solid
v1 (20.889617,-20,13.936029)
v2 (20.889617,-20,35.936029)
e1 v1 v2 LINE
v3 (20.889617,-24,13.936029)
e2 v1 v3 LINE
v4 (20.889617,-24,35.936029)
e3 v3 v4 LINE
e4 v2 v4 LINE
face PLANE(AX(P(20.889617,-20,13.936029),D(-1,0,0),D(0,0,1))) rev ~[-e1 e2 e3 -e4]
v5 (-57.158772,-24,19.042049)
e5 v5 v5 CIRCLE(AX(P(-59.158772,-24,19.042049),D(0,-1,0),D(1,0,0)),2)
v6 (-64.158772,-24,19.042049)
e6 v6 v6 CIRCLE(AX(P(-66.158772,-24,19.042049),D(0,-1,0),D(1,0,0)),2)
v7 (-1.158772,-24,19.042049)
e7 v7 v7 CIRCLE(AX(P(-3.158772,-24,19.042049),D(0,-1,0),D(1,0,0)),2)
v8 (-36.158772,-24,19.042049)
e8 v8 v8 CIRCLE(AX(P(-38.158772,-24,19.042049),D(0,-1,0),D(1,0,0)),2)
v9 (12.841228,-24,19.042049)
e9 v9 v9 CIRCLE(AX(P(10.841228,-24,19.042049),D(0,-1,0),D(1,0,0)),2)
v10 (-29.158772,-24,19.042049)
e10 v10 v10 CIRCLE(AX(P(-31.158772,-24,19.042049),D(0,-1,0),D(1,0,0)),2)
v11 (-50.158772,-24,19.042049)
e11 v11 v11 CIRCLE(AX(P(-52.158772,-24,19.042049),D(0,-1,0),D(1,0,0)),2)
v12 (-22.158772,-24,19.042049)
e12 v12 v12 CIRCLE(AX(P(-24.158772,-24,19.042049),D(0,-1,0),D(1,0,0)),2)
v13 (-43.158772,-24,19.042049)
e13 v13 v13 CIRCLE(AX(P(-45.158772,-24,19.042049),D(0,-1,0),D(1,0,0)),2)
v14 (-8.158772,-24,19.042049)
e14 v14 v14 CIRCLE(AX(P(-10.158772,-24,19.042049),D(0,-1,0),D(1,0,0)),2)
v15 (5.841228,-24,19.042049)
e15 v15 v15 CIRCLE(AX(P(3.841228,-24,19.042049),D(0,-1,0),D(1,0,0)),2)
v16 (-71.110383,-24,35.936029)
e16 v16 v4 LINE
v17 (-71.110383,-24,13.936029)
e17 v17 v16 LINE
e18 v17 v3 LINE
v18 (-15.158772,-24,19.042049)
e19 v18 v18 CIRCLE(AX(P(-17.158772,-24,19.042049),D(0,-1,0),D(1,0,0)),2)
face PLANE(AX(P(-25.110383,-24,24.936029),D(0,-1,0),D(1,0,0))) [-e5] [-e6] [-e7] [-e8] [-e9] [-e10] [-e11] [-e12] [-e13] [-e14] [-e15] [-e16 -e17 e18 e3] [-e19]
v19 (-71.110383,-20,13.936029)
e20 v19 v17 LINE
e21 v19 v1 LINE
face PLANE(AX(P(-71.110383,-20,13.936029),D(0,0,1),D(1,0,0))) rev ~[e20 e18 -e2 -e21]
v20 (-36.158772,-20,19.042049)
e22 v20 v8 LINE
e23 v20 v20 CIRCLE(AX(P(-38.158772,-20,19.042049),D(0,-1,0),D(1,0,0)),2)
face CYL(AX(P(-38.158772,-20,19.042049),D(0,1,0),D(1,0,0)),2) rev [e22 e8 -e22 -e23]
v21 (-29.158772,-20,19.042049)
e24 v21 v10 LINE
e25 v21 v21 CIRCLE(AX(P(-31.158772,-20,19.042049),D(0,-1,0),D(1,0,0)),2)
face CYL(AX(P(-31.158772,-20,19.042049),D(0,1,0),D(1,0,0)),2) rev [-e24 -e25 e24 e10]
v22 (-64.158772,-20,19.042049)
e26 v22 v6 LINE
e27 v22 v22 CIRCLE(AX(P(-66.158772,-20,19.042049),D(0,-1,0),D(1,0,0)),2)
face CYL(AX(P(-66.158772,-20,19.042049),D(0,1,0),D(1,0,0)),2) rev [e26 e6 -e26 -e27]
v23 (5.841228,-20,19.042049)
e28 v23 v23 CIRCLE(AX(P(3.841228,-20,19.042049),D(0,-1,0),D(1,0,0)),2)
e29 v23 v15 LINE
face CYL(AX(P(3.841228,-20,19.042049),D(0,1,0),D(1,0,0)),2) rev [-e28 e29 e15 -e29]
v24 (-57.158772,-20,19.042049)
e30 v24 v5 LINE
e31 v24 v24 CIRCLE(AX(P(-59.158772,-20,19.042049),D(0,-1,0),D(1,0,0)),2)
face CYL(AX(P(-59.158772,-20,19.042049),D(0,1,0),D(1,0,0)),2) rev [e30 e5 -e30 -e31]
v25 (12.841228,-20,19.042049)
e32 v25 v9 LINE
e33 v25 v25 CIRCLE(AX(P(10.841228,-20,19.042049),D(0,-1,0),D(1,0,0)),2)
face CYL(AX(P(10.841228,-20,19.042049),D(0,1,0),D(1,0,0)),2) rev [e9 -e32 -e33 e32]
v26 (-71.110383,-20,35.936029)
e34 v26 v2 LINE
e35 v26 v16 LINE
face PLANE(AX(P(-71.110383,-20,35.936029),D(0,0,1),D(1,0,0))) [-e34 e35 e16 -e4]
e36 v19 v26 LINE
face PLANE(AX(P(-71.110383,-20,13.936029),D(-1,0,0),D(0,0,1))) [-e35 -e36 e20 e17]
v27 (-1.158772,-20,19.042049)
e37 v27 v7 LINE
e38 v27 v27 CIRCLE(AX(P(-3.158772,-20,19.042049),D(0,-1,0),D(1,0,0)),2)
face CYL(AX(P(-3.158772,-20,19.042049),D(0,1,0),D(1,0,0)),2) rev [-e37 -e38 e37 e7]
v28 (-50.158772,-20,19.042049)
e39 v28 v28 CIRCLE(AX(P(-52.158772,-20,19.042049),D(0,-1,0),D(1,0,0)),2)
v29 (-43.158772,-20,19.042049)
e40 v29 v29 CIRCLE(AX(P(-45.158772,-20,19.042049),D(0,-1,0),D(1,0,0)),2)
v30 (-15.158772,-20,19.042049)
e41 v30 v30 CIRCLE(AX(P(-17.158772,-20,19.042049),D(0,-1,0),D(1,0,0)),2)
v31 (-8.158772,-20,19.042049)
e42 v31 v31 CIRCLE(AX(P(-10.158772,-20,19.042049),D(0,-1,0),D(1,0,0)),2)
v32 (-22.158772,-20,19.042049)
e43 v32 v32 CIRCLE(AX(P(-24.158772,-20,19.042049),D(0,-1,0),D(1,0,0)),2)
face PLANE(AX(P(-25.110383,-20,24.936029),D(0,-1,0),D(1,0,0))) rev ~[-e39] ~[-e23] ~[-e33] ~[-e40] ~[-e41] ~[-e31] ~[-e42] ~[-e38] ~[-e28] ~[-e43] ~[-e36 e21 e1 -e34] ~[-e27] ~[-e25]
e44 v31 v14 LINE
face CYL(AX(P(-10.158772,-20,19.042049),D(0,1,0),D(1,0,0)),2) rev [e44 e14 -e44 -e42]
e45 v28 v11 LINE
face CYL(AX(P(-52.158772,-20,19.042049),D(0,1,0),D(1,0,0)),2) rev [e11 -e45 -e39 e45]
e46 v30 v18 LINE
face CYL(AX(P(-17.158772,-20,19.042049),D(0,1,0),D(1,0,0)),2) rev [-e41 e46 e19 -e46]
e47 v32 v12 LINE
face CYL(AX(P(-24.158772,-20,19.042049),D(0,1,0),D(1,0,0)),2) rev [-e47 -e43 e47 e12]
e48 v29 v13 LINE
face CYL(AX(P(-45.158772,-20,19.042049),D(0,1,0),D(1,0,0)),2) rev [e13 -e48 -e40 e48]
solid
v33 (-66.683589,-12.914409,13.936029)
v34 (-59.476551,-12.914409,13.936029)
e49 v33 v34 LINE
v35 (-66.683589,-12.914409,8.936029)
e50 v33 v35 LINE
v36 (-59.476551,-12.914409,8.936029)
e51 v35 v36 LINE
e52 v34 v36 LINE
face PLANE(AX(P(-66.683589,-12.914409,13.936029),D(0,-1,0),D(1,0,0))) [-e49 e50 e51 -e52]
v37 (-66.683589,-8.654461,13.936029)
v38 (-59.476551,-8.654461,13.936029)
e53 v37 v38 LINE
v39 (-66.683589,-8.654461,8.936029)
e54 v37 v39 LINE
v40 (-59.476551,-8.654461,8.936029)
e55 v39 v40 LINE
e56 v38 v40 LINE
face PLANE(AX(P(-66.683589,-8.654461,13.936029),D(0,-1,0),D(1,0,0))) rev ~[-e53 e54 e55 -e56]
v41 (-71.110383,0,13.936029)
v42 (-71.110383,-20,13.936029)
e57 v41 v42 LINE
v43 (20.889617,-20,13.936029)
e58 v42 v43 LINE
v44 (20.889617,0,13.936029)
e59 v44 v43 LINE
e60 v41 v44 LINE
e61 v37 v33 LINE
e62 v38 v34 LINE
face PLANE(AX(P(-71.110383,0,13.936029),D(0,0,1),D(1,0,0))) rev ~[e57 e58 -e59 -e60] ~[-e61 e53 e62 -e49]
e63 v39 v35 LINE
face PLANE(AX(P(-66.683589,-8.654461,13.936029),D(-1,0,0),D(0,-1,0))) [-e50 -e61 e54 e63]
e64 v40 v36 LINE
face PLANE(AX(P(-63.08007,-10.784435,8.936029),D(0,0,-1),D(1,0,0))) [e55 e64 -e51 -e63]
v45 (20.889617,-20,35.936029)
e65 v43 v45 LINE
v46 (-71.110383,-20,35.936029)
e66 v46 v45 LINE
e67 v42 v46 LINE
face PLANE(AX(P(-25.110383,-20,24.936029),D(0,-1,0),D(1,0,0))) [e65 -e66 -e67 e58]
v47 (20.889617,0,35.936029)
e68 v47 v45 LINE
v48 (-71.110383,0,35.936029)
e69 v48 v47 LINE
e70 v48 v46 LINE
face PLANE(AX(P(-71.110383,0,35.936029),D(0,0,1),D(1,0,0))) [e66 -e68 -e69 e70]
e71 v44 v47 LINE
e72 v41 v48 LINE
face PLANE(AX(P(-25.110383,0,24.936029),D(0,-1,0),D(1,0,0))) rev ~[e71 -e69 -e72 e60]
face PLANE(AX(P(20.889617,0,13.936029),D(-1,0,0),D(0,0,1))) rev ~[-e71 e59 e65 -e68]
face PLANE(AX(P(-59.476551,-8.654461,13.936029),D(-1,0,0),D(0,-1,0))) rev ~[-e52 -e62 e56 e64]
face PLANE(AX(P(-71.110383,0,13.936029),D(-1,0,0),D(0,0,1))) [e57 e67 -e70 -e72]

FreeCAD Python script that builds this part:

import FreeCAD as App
import Part
import Sketcher
from FreeCAD import Vector


def add_polygon(sketch, points):
    """Adds a closed chain of lines whose ends are joined by coincident constraints."""
    first, n = sketch.GeometryCount, len(points)
    for a, b in zip(points, points[1:] + points[:1]):
        sketch.addGeometry(Part.LineSegment(App.Vector(*a, 0), App.Vector(*b, 0)), False)
    for i in range(n):
        sketch.addConstraint(Sketcher.Constraint("Coincident", first + i, 2, first + (i + 1) % n, 1))

doc = App.newDocument("Part")
body = doc.addObject("PartDesign::Body", "Body")

sketch1 = body.newObject("Sketcher::SketchObject", "Sketch")
sketch1.AttachmentSupport = (doc.getObject("XZ_Plane"), [""])
sketch1.MapMode = "FlatFace"
add_polygon(sketch1, [(-71, 36), (-71, 14), (21, 14), (21, 36)])
sketch1.addConstraint(Sketcher.Constraint("Vertical", 0))
sketch1.addConstraint(Sketcher.Constraint("Horizontal", 1))
sketch1.addConstraint(Sketcher.Constraint("Vertical", 2))
sketch1.addConstraint(Sketcher.Constraint("Horizontal", 3))
sketch1.addConstraint(Sketcher.Constraint("DistanceX", 1, 1, 1, 2, 92.0))
sketch1.addConstraint(Sketcher.Constraint("DistanceY", 0, 2, 0, 1, 22.0))
sketch1.addConstraint(Sketcher.Constraint("DistanceY", -1, 1, 0, 2, 13.936029))
sketch1.addConstraint(Sketcher.Constraint("DistanceX", 0, 2, -1, 1, 71.110383))
pad1 = body.newObject("PartDesign::Pad", "Pad")
pad1.Profile = sketch1
pad1.Length = 20

sketch2 = body.newObject("Sketcher::SketchObject", "Sketch001")
sketch2.AttachmentSupport = (doc.getObject("XY_Plane"), [""])
sketch2.MapMode = "FlatFace"
sketch2.AttachmentOffset = App.Placement(Vector(0, 0, 13.936029), App.Rotation())
add_polygon(sketch2, [(-66.7, -12.9), (-66.7, -8.7), (-59.5, -8.7), (-59.5, -12.9)])
sketch2.addConstraint(Sketcher.Constraint("Vertical", 0))
sketch2.addConstraint(Sketcher.Constraint("Horizontal", 1))
sketch2.addConstraint(Sketcher.Constraint("Vertical", 2))
sketch2.addConstraint(Sketcher.Constraint("Horizontal", 3))
sketch2.addConstraint(Sketcher.Constraint("DistanceX", 1, 1, 1, 2, 7.207039))
sketch2.addConstraint(Sketcher.Constraint("DistanceY", 0, 1, 0, 2, 4.259948))
sketch2.addConstraint(Sketcher.Constraint("DistanceX", 0, 2, -1, 1, 66.683589))
sketch2.addConstraint(Sketcher.Constraint("DistanceY", 0, 2, -1, 1, 8.654461))
pad2 = body.newObject("PartDesign::Pad", "Pad001")
pad2.Profile = sketch2
pad2.Length = 5
pad2.Reversed = True
body2 = doc.addObject("PartDesign::Body", "Body001")

sketch3 = body2.newObject("Sketcher::SketchObject", "Sketch002")
sketch3.AttachmentSupport = (doc.getObject("XZ_Plane001"), [""])
sketch3.MapMode = "FlatFace"
sketch3.AttachmentOffset = App.Placement(Vector(0, 0, 20), App.Rotation())
add_polygon(sketch3, [(-71.1, 35.9), (-71.1, 13.9), (20.9, 13.9), (20.9, 35.9)])
sketch3.addGeometry(Part.Circle(Vector(-66.2, 19, 0), Vector(0, 0, 1), 2), False)
sketch3.addGeometry(Part.Circle(Vector(-59.2, 19, 0), Vector(0, 0, 1), 2), False)
sketch3.addGeometry(Part.Circle(Vector(-52.2, 19, 0), Vector(0, 0, 1), 2), False)
sketch3.addGeometry(Part.Circle(Vector(-45.2, 19, 0), Vector(0, 0, 1), 2), False)
sketch3.addGeometry(Part.Circle(Vector(-38.2, 19, 0), Vector(0, 0, 1), 2), False)
sketch3.addGeometry(Part.Circle(Vector(-31.2, 19, 0), Vector(0, 0, 1), 2), False)
sketch3.addGeometry(Part.Circle(Vector(-24.2, 19, 0), Vector(0, 0, 1), 2), False)
sketch3.addGeometry(Part.Circle(Vector(-17.2, 19, 0), Vector(0, 0, 1), 2), False)
sketch3.addGeometry(Part.Circle(Vector(-10.2, 19, 0), Vector(0, 0, 1), 2), False)
sketch3.addGeometry(Part.Circle(Vector(-3.2, 19, 0), Vector(0, 0, 1), 2), False)
sketch3.addGeometry(Part.Circle(Vector(3.8, 19, 0), Vector(0, 0, 1), 2), False)
sketch3.addGeometry(Part.Circle(Vector(10.8, 19, 0), Vector(0, 0, 1), 2), False)
sketch3.addConstraint(Sketcher.Constraint("Vertical", 0))
sketch3.addConstraint(Sketcher.Constraint("Horizontal", 1))
sketch3.addConstraint(Sketcher.Constraint("Vertical", 2))
sketch3.addConstraint(Sketcher.Constraint("Horizontal", 3))
sketch3.addConstraint(Sketcher.Constraint("Equal", 4, 5))
sketch3.addConstraint(Sketcher.Constraint("Equal", 5, 6))
sketch3.addConstraint(Sketcher.Constraint("Equal", 6, 7))
sketch3.addConstraint(Sketcher.Constraint("Equal", 7, 8))
sketch3.addConstraint(Sketcher.Constraint("Equal", 8, 9))
sketch3.addConstraint(Sketcher.Constraint("Equal", 9, 10))
sketch3.addConstraint(Sketcher.Constraint("Equal", 10, 11))
sketch3.addConstraint(Sketcher.Constraint("Equal", 11, 12))
sketch3.addConstraint(Sketcher.Constraint("Equal", 12, 13))
sketch3.addConstraint(Sketcher.Constraint("Equal", 13, 14))
sketch3.addConstraint(Sketcher.Constraint("Equal", 14, 15))
sketch3.addConstraint(Sketcher.Constraint("Horizontal", 4, 3, 5, 3))
sketch3.addConstraint(Sketcher.Constraint("Horizontal", 5, 3, 6, 3))
sketch3.addConstraint(Sketcher.Constraint("Horizontal", 6, 3, 7, 3))
sketch3.addConstraint(Sketcher.Constraint("Horizontal", 7, 3, 8, 3))
sketch3.addConstraint(Sketcher.Constraint("Horizontal", 8, 3, 9, 3))
sketch3.addConstraint(Sketcher.Constraint("Horizontal", 9, 3, 10, 3))
sketch3.addConstraint(Sketcher.Constraint("Horizontal", 10, 3, 11, 3))
sketch3.addConstraint(Sketcher.Constraint("Horizontal", 11, 3, 12, 3))
sketch3.addConstraint(Sketcher.Constraint("Horizontal", 12, 3, 13, 3))
sketch3.addConstraint(Sketcher.Constraint("Horizontal", 13, 3, 14, 3))
sketch3.addConstraint(Sketcher.Constraint("Horizontal", 14, 3, 15, 3))
sketch3.addConstraint(Sketcher.Constraint("Diameter", 4, 4.0))
sketch3.addConstraint(Sketcher.Constraint("DistanceX", 1, 1, 1, 2, 92.0))
sketch3.addConstraint(Sketcher.Constraint("DistanceY", 0, 2, 0, 1, 22.0))
sketch3.addConstraint(Sketcher.Constraint("DistanceX", 4, 3, 5, 3, 7.0))
sketch3.addConstraint(Sketcher.Constraint("DistanceX", 5, 3, 6, 3, 7.0))
sketch3.addConstraint(Sketcher.Constraint("DistanceX", 6, 3, 7, 3, 7.0))
sketch3.addConstraint(Sketcher.Constraint("DistanceX", 7, 3, 8, 3, 7.0))
sketch3.addConstraint(Sketcher.Constraint("DistanceX", 8, 3, 9, 3, 7.0))
sketch3.addConstraint(Sketcher.Constraint("DistanceX", 9, 3, 10, 3, 7.0))
sketch3.addConstraint(Sketcher.Constraint("DistanceX", 10, 3, 11, 3, 7.0))
sketch3.addConstraint(Sketcher.Constraint("DistanceX", 11, 3, 12, 3, 7.0))
sketch3.addConstraint(Sketcher.Constraint("DistanceX", 12, 3, 13, 3, 7.0))
sketch3.addConstraint(Sketcher.Constraint("DistanceX", 13, 3, 14, 3, 7.0))
sketch3.addConstraint(Sketcher.Constraint("DistanceX", 14, 3, 15, 3, 7.0))
sketch3.addConstraint(Sketcher.Constraint("DistanceX", 4, 3, -1, 1, 66.158772))
sketch3.addConstraint(Sketcher.Constraint("DistanceY", -1, 1, 4, 3, 19.042049))
sketch3.addConstraint(Sketcher.Constraint("DistanceY", -1, 1, 0, 2, 13.936029))
sketch3.addConstraint(Sketcher.Constraint("DistanceX", 0, 2, 4, 3, 4.951611))
pad3 = body2.newObject("PartDesign::Pad", "Pad002")
pad3.Profile = sketch3
pad3.Length = 4

doc.recompute()
